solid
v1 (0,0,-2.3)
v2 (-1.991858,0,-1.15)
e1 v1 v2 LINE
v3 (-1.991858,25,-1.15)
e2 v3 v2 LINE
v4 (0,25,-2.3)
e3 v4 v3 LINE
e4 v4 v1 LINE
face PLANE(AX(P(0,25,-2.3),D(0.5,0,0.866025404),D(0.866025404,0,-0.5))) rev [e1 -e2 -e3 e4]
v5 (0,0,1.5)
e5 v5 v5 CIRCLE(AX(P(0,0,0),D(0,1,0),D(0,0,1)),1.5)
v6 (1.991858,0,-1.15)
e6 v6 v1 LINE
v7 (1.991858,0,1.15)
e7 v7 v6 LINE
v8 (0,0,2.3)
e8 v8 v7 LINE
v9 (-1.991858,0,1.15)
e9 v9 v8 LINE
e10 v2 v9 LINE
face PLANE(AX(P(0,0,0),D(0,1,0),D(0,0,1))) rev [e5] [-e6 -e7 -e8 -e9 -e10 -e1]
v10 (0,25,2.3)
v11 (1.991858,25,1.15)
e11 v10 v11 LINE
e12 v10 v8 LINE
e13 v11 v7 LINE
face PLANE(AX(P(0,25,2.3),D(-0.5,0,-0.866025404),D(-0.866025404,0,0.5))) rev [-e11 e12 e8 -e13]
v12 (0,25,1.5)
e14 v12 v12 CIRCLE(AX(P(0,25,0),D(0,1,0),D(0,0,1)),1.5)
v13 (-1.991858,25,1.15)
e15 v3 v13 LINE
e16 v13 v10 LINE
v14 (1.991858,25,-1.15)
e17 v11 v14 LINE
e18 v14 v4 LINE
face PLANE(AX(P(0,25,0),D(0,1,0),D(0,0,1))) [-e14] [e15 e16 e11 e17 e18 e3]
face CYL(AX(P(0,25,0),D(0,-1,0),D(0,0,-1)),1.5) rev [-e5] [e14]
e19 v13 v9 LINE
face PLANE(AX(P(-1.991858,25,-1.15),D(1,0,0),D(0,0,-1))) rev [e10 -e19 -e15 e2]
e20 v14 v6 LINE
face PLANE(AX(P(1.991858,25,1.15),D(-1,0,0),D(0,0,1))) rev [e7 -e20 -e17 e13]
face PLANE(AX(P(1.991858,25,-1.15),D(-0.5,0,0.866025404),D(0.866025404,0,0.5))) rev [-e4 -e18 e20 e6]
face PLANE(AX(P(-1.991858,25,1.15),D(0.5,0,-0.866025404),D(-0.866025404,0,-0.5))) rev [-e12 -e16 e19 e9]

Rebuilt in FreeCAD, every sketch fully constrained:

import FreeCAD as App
import Part
import Sketcher
Q = App.Units.Quantity

doc = App.newDocument("Part")
body = doc.addObject("PartDesign::Body", "Body")

# Sketch on XZ plane
sketch1 = body.newObject("Sketcher::SketchObject", "Sketch")
sketch1.AttachmentSupport = (doc.getObject("XZ_Plane"), [""])
sketch1.MapMode = "FlatFace"
sketch1.addGeometry([
    Part.LineSegment(App.Vector(0, -2.3, 0), App.Vector(-2, -1.1, 0)),  # 0
    Part.LineSegment(App.Vector(-2, -1.1, 0), App.Vector(-2, 1.1, 0)),  # 1
    Part.LineSegment(App.Vector(-2, 1.1, 0), App.Vector(0, 2.3, 0)),  # 2
    Part.LineSegment(App.Vector(0, 2.3, 0), App.Vector(2, 1.1, 0)),  # 3
    Part.LineSegment(App.Vector(2, 1.1, 0), App.Vector(2, -1.1, 0)),  # 4
    Part.LineSegment(App.Vector(2, -1.1, 0), App.Vector(0, -2.3, 0)),  # 5
    Part.Circle(App.Vector(0, 0, 0), App.Vector(0, 0, 1), 1.5),  # 6
], False)
sketch1.addConstraint([
    Sketcher.Constraint("Coincident", 0, 2, 1, 1),
    Sketcher.Constraint("Coincident", 1, 2, 2, 1),
    Sketcher.Constraint("Coincident", 2, 2, 3, 1),
    Sketcher.Constraint("Coincident", 3, 2, 4, 1),
    Sketcher.Constraint("Coincident", 4, 2, 5, 1),
    Sketcher.Constraint("Coincident", 5, 2, 0, 1),
    Sketcher.Constraint("Vertical", 1),
    Sketcher.Constraint("Vertical", 4),
    Sketcher.Constraint("Coincident", 6, 3, -1, 1),
    Sketcher.Constraint("Symmetric", 0, 2, 3, 2, -1, 1),
    Sketcher.Constraint("Symmetric", 2, 2, 5, 2, -1, 1),
    Sketcher.Constraint("PointOnObject", 2, 2, -2),
    Sketcher.Constraint("Parallel", 2, 5),
    Sketcher.Constraint("Horizontal", 1, 2, 3, 2),
    Sketcher.Constraint("Diameter", 6, Q("3 mm")),
    Sketcher.Constraint("Angle", 0, Q("150 deg")),
    Sketcher.Constraint("DistanceY", 1, 1, 1, 2, Q("2.3 mm")),
    Sketcher.Constraint("Distance", 0, Q("2.3 mm")),
])
pad1 = body.newObject("PartDesign::Pad", "Pad")
pad1.Profile = sketch1
pad1.Length = 25
pad1.Reversed = True

doc.recompute()
